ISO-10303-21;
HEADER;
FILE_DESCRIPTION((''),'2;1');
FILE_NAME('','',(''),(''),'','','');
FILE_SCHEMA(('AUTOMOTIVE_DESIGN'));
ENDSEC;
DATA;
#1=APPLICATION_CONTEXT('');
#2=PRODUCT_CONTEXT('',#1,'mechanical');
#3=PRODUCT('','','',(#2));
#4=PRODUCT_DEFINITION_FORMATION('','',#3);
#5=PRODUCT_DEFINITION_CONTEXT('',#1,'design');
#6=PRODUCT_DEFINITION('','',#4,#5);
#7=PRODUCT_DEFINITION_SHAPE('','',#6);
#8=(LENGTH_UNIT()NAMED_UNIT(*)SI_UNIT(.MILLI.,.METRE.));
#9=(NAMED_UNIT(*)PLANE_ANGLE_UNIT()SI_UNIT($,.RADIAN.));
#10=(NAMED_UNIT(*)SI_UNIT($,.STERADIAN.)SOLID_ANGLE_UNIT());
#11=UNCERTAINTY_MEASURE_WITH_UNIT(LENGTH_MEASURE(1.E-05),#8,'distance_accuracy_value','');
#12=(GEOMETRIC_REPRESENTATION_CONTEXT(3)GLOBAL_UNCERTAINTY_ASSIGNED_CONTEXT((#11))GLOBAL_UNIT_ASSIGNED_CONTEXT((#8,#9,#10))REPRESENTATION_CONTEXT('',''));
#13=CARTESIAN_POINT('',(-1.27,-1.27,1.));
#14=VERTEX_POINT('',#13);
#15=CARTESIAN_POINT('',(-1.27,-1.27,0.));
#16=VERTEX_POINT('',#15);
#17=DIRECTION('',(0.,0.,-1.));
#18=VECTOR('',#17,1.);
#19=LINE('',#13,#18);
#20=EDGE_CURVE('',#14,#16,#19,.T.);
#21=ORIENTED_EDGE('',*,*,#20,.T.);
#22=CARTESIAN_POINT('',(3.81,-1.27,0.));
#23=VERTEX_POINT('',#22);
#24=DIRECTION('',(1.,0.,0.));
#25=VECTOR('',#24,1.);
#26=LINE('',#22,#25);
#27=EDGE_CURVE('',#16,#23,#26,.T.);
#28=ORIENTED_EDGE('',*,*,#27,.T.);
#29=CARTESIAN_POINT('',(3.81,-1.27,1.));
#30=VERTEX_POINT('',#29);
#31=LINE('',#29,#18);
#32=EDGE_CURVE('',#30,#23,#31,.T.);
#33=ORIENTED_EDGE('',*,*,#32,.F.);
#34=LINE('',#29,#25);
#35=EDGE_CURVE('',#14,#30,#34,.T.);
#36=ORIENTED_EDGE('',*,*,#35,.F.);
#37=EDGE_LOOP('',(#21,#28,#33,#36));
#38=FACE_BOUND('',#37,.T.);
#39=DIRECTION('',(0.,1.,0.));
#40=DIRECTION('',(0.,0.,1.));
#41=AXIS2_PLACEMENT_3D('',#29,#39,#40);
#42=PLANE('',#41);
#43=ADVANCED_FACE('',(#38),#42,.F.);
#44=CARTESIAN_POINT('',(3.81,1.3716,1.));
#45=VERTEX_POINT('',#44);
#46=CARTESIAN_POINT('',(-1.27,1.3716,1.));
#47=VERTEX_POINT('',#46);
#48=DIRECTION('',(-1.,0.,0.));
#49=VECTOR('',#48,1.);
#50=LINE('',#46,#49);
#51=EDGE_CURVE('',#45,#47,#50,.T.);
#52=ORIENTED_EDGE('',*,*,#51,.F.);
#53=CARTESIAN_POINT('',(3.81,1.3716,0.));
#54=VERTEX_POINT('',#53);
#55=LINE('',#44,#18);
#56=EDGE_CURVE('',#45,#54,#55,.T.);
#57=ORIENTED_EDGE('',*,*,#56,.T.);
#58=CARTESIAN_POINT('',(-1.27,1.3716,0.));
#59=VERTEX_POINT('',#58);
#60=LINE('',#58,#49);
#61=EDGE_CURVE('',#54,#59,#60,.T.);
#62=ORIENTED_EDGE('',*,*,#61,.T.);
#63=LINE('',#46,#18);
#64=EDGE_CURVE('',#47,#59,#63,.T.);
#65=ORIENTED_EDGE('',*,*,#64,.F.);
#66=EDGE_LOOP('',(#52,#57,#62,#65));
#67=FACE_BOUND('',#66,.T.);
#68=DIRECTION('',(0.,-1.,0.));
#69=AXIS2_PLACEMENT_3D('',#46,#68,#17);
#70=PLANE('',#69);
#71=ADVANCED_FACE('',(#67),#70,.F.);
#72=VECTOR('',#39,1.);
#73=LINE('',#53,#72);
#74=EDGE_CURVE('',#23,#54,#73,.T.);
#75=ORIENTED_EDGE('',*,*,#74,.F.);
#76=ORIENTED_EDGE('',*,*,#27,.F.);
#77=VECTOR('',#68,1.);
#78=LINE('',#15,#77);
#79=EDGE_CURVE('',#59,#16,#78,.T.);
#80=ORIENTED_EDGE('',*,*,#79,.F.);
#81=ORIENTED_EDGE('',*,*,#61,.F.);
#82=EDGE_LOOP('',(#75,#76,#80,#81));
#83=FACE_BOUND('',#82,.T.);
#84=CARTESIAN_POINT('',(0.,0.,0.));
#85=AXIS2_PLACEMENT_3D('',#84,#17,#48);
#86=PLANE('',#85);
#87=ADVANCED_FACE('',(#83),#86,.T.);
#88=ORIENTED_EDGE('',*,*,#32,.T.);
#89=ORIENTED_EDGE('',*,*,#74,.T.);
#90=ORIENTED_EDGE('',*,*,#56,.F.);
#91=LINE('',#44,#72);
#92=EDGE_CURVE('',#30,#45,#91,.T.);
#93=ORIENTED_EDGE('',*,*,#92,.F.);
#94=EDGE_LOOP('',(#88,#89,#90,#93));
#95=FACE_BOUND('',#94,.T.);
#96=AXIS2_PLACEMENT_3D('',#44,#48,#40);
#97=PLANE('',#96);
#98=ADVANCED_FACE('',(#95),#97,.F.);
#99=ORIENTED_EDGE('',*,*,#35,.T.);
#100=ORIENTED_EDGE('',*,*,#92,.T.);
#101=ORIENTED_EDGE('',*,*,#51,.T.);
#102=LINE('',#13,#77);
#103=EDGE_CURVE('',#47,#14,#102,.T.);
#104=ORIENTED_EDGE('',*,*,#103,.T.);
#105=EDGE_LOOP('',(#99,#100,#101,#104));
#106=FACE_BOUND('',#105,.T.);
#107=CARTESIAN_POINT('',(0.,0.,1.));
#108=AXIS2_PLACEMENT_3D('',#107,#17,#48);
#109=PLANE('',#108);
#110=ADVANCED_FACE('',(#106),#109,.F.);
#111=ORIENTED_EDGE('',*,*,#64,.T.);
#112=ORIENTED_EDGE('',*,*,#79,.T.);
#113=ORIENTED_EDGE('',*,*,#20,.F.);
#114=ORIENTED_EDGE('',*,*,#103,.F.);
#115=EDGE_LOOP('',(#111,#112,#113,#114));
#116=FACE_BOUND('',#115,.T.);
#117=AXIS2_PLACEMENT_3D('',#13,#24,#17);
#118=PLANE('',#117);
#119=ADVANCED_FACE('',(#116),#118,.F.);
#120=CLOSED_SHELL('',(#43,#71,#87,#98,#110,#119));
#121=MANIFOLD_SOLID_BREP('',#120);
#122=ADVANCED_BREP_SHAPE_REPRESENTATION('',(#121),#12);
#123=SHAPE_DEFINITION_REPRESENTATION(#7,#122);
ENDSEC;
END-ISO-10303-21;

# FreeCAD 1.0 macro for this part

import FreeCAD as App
import Part
import Sketcher
Q = App.Units.Quantity


def add_polygon(sketch, points):
    """Adds a closed chain of lines whose ends are joined by coincident constraints."""
    first, n = sketch.GeometryCount, len(points)
    for a, b in zip(points, points[1:] + points[:1]):
        sketch.addGeometry(Part.LineSegment(App.Vector(*a, 0), App.Vector(*b, 0)), False)
    for i in range(n):
        sketch.addConstraint(Sketcher.Constraint("Coincident", first + i, 2, first + (i + 1) % n, 1))

doc = App.newDocument("Part")
body = doc.addObject("PartDesign::Body", "Body")

sketch1 = body.newObject("Sketcher::SketchObject", "Sketch")
sketch1.AttachmentSupport = (doc.getObject("XY_Plane"), [""])
sketch1.MapMode = "FlatFace"
add_polygon(sketch1, [(-1.3, 1.4), (-1.3, -1.3), (3.8, -1.3), (3.8, 1.4)])
sketch1.addConstraint(Sketcher.Constraint("Vertical", 0))
sketch1.addConstraint(Sketcher.Constraint("Horizontal", 1))
sketch1.addConstraint(Sketcher.Constraint("Vertical", 2))
sketch1.addConstraint(Sketcher.Constraint("Horizontal", 3))
sketch1.addConstraint(Sketcher.Constraint("DistanceX", 1, 1, 1, 2, Q("0.2 in")))
sketch1.addConstraint(Sketcher.Constraint("DistanceY", 0, 2, 0, 1, Q("0.104 in")))
sketch1.addConstraint(Sketcher.Constraint("DistanceX", 0, 2, -1, 1, Q("0.05 in")))
sketch1.addConstraint(Sketcher.Constraint("DistanceY", 0, 2, -1, 1, Q("0.05 in")))
pad1 = body.newObject("PartDesign::Pad", "Pad")
pad1.Profile = sketch1
pad1.Length = 1

doc.recompute()
